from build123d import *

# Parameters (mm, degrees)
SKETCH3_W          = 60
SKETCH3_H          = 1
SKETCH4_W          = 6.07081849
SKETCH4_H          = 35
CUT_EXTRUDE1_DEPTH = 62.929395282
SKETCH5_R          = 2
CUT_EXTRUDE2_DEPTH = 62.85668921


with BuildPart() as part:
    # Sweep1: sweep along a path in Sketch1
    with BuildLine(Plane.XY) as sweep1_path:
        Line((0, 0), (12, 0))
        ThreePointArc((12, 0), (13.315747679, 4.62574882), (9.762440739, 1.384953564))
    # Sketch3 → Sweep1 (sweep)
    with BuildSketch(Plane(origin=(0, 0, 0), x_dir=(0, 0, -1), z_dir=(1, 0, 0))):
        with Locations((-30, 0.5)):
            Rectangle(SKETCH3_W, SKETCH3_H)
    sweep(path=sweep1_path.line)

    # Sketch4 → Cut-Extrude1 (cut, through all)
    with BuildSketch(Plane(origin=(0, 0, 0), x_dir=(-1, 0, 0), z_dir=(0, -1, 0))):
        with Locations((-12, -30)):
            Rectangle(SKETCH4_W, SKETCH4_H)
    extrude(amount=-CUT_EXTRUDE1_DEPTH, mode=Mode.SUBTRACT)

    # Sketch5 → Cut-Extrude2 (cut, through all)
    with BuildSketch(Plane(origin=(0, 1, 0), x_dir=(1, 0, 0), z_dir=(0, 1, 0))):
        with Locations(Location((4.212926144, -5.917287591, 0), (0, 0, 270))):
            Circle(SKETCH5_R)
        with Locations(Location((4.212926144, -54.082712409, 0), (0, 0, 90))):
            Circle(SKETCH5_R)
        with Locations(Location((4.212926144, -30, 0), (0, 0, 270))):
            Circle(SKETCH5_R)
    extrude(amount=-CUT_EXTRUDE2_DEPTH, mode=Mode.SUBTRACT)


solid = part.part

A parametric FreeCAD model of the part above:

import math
import FreeCAD as App
import Part
import Sketcher
from FreeCAD import Vector
Q = App.Units.Quantity


def add_polygon(sketch, points):
    """Adds a closed chain of lines whose ends are joined by coincident constraints."""
    first, n = sketch.GeometryCount, len(points)
    for a, b in zip(points, points[1:] + points[:1]):
        sketch.addGeometry(Part.LineSegment(App.Vector(*a, 0), App.Vector(*b, 0)), False)
    for i in range(n):
        sketch.addConstraint(Sketcher.Constraint("Coincident", first + i, 2, first + (i + 1) % n, 1))

doc = App.newDocument("Part")
body = doc.addObject("PartDesign::Body", "Body")

# Sketch on YZ plane
sketch1 = body.newObject("Sketcher::SketchObject", "Sketch")
sketch1.AttachmentSupport = (doc.getObject("YZ_Plane"), [""])
sketch1.MapMode = "FlatFace"
add_polygon(sketch1, [(1, 60), (0, 60), (0, 0), (1, 0)])  # lines 0-3
sketch1.addConstraint([
    Sketcher.Constraint("Horizontal", 0),
    Sketcher.Constraint("Vertical", 1),
    Sketcher.Constraint("Horizontal", 2),
    Sketcher.Constraint("Vertical", 3),
    Sketcher.Constraint("Coincident", 1, 2, -1, 1),
    Sketcher.Constraint("DistanceX", 0, 2, 0, 1, Q("1 mm")),
    Sketcher.Constraint("DistanceY", 1, 2, 1, 1, Q("60 mm")),
])

# Sketch on XY plane
sketch2 = body.newObject("Sketcher::SketchObject", "Sketch001")
sketch2.AttachmentSupport = (doc.getObject("XY_Plane"), [""])
sketch2.MapMode = "FlatFace"
sketch2.addGeometry([
    Part.LineSegment(Vector(0, 0, 0), Vector(12, 0, 0)),
    Part.ArcOfCircle(Part.Circle(Vector(12, 2.5, 0), Vector(0, 0, 1), 2.5), math.radians(-90), math.radians(206.488525)),
], False)
sketch2.addConstraint([
    Sketcher.Constraint("Tangent", 0, 2, 1, 1),
    Sketcher.Constraint("Horizontal", 0),
    Sketcher.Constraint("Coincident", 0, 1, -1, 1),
    Sketcher.Constraint("Radius", 1, Q("2.5 mm")),
    Sketcher.Constraint("DistanceX", 0, 1, 0, 2, Q("12 mm")),
    Sketcher.Constraint("DistanceX", -1, 1, 1, 2, Q("9.762441 mm")),
])
doc.recompute()

additivepipe = body.newObject("PartDesign::AdditivePipe", "AdditivePipe")
additivepipe.Profile = sketch1
additivepipe.Spine = (sketch2, ["Edge1", "Edge2"])

# Sketch on XZ plane
sketch3 = body.newObject("Sketcher::SketchObject", "Sketch002")
sketch3.AttachmentSupport = (doc.getObject("XZ_Plane"), [""])
sketch3.MapMode = "FlatFace"
add_polygon(sketch3, [(15.035409, 12.5), (15.035409, 47.5), (8.964591, 47.5), (8.964591, 12.5)])  # lines 0-3
sketch3.addConstraint([
    Sketcher.Constraint("Vertical", 0),
    Sketcher.Constraint("Horizontal", 1),
    Sketcher.Constraint("Vertical", 2),
    Sketcher.Constraint("Horizontal", 3),
    Sketcher.Constraint("DistanceY", 0, 1, 0, 2, Q("35 mm")),
    Sketcher.Constraint("DistanceY", -1, 1, 0, 2, Q("47.5 mm")),
    Sketcher.Constraint("DistanceX", 1, 2, 1, 1, Q("6.070818 mm")),
    Sketcher.Constraint("DistanceX", -1, 1, 0, 2, Q("15.035409 mm")),
])
pocket1 = body.newObject("PartDesign::Pocket", "Pocket")
pocket1.Profile = sketch3
pocket1.Type = "ThroughAll"

# Sketch on XZ plane
sketch4 = body.newObject("Sketcher::SketchObject", "Sketch003")
sketch4.AttachmentSupport = (doc.getObject("XZ_Plane"), [""])
sketch4.MapMode = "FlatFace"
sketch4.AttachmentOffset = App.Placement(Vector(0, 0, -1), App.Rotation())
sketch4.addGeometry([
    Part.Circle(Vector(4.212926, 5.917288, 0), Vector(0, 0, 1), 2),
    Part.Circle(Vector(4.212926, 54.082712, 0), Vector(0, 0, 1), 2),
    Part.Circle(Vector(4.212926, 30, 0), Vector(0, 0, 1), 2),
], False)
sketch4.addConstraint([
    Sketcher.Constraint("Equal", 0, 1),
    Sketcher.Constraint("Equal", 1, 2),
    Sketcher.Constraint("Vertical", 0, 3, 1, 3),
    Sketcher.Constraint("Vertical", 1, 3, 2, 3),
    Sketcher.Constraint("Diameter", 0, Q("4 mm")),
    Sketcher.Constraint("DistanceY", -1, 1, 2, 3, Q("30 mm")),
    Sketcher.Constraint("DistanceX", -1, 1, 0, 3, Q("4.212926 mm")),
    Sketcher.Constraint("DistanceY", -1, 1, 0, 3, Q("5.917288 mm")),
    Sketcher.Constraint("DistanceY", -1, 1, 1, 3, Q("54.082712 mm")),
])
pocket2 = body.newObject("PartDesign::Pocket", "Pocket001")
pocket2.Profile = sketch4
pocket2.Type = "ThroughAll"
pocket2.Reversed = True

doc.recompute()
